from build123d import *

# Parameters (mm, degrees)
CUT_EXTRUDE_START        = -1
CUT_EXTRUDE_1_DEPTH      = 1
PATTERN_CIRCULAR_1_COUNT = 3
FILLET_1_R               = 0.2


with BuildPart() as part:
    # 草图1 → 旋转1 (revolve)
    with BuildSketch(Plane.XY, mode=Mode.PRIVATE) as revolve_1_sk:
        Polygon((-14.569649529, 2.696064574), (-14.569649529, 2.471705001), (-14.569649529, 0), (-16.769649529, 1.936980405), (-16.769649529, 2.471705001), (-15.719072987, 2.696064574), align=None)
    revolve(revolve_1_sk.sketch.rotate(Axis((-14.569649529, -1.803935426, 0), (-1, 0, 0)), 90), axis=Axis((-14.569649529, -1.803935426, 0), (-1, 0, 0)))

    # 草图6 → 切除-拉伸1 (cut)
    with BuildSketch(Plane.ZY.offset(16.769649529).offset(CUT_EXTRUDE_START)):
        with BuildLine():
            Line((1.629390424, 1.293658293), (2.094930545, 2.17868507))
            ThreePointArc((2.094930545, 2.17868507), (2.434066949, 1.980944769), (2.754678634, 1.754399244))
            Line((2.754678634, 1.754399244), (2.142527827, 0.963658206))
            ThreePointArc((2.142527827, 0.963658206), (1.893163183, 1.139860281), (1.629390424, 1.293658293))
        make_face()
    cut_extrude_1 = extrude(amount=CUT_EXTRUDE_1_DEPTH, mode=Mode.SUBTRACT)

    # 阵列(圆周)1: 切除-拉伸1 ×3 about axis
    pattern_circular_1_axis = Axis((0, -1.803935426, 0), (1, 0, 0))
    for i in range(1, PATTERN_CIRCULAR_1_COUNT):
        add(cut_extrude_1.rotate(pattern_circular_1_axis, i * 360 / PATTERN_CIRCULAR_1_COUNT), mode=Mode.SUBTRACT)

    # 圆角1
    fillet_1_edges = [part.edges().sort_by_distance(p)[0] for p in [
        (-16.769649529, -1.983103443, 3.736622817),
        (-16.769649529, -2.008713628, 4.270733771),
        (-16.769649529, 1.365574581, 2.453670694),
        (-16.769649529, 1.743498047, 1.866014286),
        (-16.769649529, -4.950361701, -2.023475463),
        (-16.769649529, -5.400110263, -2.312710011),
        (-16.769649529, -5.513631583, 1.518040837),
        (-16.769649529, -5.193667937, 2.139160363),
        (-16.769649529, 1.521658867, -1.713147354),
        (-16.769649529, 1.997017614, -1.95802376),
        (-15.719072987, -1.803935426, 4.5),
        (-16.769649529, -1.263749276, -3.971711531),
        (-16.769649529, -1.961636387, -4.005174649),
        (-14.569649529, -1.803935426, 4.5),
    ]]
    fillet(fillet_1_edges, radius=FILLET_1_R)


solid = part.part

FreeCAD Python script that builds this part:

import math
import FreeCAD as App
import Part
import Sketcher
from FreeCAD import Vector
Q = App.Units.Quantity


def edges_at(feature, points):
    """Names of the edges that pass closest to the given points."""
    edges = feature.Shape.Edges
    near = lambda p: min(range(len(edges)), key=lambda i: edges[i].distToShape(Part.Vertex(*p))[0])
    return sorted({f"Edge{near(p) + 1}" for p in points})


def add_polygon(sketch, points):
    """Adds a closed chain of lines whose ends are joined by coincident constraints."""
    first, n = sketch.GeometryCount, len(points)
    for a, b in zip(points, points[1:] + points[:1]):
        sketch.addGeometry(Part.LineSegment(App.Vector(*a, 0), App.Vector(*b, 0)), False)
    for i in range(n):
        sketch.addConstraint(Sketcher.Constraint("Coincident", first + i, 2, first + (i + 1) % n, 1))

doc = App.newDocument("Part")
params = doc.addObject("Spreadsheet::Sheet", "Params")
for row, (alias, value) in enumerate([
    ("sketch1_width", "2.2 mm"),
    ("revolution_angle", "360 deg"),
    ("sketch2_radius", "3.5 mm"),
    ("sketch2_radius2", "4.5 mm"),
    ("pocket1_length", "1 mm"),
    ("fillet_radius", "0.2 mm"),
], start=1):
    params.set(f"A{row}", alias)
    params.set(f"B{row}", "=" + value)
    params.setAlias(f"B{row}", alias)

body = doc.addObject("PartDesign::Body", "Body")

# Sketch on XY plane
sketch1 = doc.addObject("Sketcher::SketchObject", "Sketch")
body.addObject(sketch1)
sketch1.AttachmentSupport = (doc.XY_Plane, [""])
sketch1.MapMode = "FlatFace"
add_polygon(sketch1, [(-14.56965, 0), (-14.56965, 2.696065), (-15.719073, 2.696065), (-16.76965, 2.471705), (-16.76965, 1.93698)])  # lines 0-4
sketch1.addGeometry(Part.LineSegment(Vector(-14.56965, -1.803935, 0), Vector(-16.76965, -1.803935, 0)), True)  # axis
sketch1.addConstraint([
    Sketcher.Constraint("Vertical", 0),
    Sketcher.Constraint("Horizontal", 1),
    Sketcher.Constraint("Vertical", 3),
    Sketcher.Constraint("Horizontal", 5),
    Sketcher.Constraint("PointOnObject", 4, 2, -1),
    Sketcher.Constraint("Vertical", 4, 2, 5, 1),
    Sketcher.Constraint("Vertical", 3, 2, 5, 2),
    Sketcher.Constraint("DistanceX", 5, 2, 5, 1, Q("2.2 mm")),
    Sketcher.Constraint("DistanceY", 5, 1, 0, 2, Q("4.5 mm")),
    Sketcher.Constraint("DistanceX", 1, 2, 1, 1, Q("1.149423 mm")),
    Sketcher.Constraint("DistanceY", 0, 1, 0, 2, Q("2.696065 mm")),
    Sketcher.Constraint("DistanceY", 3, 2, 3, 1, Q("0.534725 mm")),
    Sketcher.Constraint("DistanceX", 0, 2, -1, 1, Q("14.56965 mm")),
    Sketcher.Constraint("DistanceY", -1, 1, 3, 2, Q("1.93698 mm")),
])
sketch1.setExpression("Constraints[12]", "Params.sketch1_width")
revolution = doc.addObject("PartDesign::Revolution", "Revolution")
body.addObject(revolution)
revolution.Profile = sketch1
revolution.ReferenceAxis = (sketch1, ["Axis0"])
revolution.setExpression("Angle", "Params.revolution_angle")

# Sketch on YZ plane
sketch2 = doc.addObject("Sketcher::SketchObject", "Sketch001")
body.addObject(sketch2)
sketch2.AttachmentSupport = (doc.YZ_Plane, [""])
sketch2.MapMode = "FlatFace"
sketch2.AttachmentOffset = App.Placement(Vector(0, 0, -15.76965), App.Rotation())
sketch2.addGeometry([
    Part.LineSegment(Vector(2.178685, 2.094931, 0), Vector(1.293658, 1.62939, 0)),
    Part.ArcOfCircle(Part.Circle(Vector(-1.803935, 0, 0), Vector(0, 0, 1), 3.5), math.radians(27.745183), math.radians(37.745183)),
    Part.LineSegment(Vector(0.963658, 2.142528, 0), Vector(1.754399, 2.754679, 0)),
    Part.ArcOfCircle(Part.Circle(Vector(-1.803935, 0, 0), Vector(0, 0, 1), 4.5), math.radians(27.745183), math.radians(37.745183)),
], False)
sketch2.addConstraint([
    Sketcher.Constraint("Coincident", 0, 2, 1, 1),
    Sketcher.Constraint("Coincident", 1, 2, 2, 1),
    Sketcher.Constraint("Coincident", 2, 2, 3, 2),
    Sketcher.Constraint("Coincident", 3, 1, 0, 1),
    Sketcher.Constraint("Coincident", 3, 3, 1, 3),
    Sketcher.Constraint("PointOnObject", 1, 3, -1),
    Sketcher.Constraint("Radius", 1, Q("3.5 mm")),
    Sketcher.Constraint("Radius", 3, Q("4.5 mm")),
    Sketcher.Constraint("DistanceX", 1, 2, 0, 2, Q("0.33 mm")),
    Sketcher.Constraint("DistanceX", -1, 1, 2, 2, Q("1.754399 mm")),
    Sketcher.Constraint("DistanceX", -1, 1, 0, 2, Q("1.293658 mm")),
    Sketcher.Constraint("DistanceY", -1, 1, 0, 2, Q("1.62939 mm")),
    Sketcher.Constraint("DistanceY", -1, 1, 3, 1, Q("2.094931 mm")),
])
sketch2.setExpression("Constraints[6]", "Params.sketch2_radius")
sketch2.setExpression("Constraints[7]", "Params.sketch2_radius2")
pocket1 = doc.addObject("PartDesign::Pocket", "Pocket")
body.addObject(pocket1)
pocket1.Profile = sketch2
pocket1.setExpression("Length", "Params.pocket1_length")
doc.recompute()

datumline = doc.addObject("PartDesign::Line", "DatumLine")
body.addObject(datumline)
datumline.Placement = App.Placement(Vector(0, -1.803935, 0), App.Rotation(Vector(0, 0, 1), Vector(1, 0, 0)))
polarpattern = doc.addObject("PartDesign::PolarPattern", "PolarPattern")
body.addObject(polarpattern)
polarpattern.Originals = [pocket1]
polarpattern.Axis = (datumline, [""])
polarpattern.Angle = 360
polarpattern.Occurrences = 3
body.Tip = polarpattern
doc.recompute()

fillet = doc.addObject("PartDesign::Fillet", "Fillet")
body.addObject(fillet)
fillet.Base = (polarpattern, edges_at(polarpattern, [
    (-16.77, -1.983, 3.737),
    (-16.77, -2.009, 4.271),
    (-16.77, 1.366, 2.454),
    (-16.77, 1.743, 1.866),
    (-16.77, -4.95, -2.023),
    (-16.77, -5.4, -2.313),
    (-16.77, -5.514, 1.518),
    (-16.77, -5.194, 2.139),
    (-16.77, 1.522, -1.713),
    (-16.77, 1.997, -1.958),
    (-15.719, -1.804, 4.5),
    (-16.77, -1.264, -3.972),
    (-16.77, -1.962, -4.005),
    (-14.57, -1.804, 4.5),
]))
fillet.setExpression("Radius", "Params.fillet_radius")

doc.recompute()
